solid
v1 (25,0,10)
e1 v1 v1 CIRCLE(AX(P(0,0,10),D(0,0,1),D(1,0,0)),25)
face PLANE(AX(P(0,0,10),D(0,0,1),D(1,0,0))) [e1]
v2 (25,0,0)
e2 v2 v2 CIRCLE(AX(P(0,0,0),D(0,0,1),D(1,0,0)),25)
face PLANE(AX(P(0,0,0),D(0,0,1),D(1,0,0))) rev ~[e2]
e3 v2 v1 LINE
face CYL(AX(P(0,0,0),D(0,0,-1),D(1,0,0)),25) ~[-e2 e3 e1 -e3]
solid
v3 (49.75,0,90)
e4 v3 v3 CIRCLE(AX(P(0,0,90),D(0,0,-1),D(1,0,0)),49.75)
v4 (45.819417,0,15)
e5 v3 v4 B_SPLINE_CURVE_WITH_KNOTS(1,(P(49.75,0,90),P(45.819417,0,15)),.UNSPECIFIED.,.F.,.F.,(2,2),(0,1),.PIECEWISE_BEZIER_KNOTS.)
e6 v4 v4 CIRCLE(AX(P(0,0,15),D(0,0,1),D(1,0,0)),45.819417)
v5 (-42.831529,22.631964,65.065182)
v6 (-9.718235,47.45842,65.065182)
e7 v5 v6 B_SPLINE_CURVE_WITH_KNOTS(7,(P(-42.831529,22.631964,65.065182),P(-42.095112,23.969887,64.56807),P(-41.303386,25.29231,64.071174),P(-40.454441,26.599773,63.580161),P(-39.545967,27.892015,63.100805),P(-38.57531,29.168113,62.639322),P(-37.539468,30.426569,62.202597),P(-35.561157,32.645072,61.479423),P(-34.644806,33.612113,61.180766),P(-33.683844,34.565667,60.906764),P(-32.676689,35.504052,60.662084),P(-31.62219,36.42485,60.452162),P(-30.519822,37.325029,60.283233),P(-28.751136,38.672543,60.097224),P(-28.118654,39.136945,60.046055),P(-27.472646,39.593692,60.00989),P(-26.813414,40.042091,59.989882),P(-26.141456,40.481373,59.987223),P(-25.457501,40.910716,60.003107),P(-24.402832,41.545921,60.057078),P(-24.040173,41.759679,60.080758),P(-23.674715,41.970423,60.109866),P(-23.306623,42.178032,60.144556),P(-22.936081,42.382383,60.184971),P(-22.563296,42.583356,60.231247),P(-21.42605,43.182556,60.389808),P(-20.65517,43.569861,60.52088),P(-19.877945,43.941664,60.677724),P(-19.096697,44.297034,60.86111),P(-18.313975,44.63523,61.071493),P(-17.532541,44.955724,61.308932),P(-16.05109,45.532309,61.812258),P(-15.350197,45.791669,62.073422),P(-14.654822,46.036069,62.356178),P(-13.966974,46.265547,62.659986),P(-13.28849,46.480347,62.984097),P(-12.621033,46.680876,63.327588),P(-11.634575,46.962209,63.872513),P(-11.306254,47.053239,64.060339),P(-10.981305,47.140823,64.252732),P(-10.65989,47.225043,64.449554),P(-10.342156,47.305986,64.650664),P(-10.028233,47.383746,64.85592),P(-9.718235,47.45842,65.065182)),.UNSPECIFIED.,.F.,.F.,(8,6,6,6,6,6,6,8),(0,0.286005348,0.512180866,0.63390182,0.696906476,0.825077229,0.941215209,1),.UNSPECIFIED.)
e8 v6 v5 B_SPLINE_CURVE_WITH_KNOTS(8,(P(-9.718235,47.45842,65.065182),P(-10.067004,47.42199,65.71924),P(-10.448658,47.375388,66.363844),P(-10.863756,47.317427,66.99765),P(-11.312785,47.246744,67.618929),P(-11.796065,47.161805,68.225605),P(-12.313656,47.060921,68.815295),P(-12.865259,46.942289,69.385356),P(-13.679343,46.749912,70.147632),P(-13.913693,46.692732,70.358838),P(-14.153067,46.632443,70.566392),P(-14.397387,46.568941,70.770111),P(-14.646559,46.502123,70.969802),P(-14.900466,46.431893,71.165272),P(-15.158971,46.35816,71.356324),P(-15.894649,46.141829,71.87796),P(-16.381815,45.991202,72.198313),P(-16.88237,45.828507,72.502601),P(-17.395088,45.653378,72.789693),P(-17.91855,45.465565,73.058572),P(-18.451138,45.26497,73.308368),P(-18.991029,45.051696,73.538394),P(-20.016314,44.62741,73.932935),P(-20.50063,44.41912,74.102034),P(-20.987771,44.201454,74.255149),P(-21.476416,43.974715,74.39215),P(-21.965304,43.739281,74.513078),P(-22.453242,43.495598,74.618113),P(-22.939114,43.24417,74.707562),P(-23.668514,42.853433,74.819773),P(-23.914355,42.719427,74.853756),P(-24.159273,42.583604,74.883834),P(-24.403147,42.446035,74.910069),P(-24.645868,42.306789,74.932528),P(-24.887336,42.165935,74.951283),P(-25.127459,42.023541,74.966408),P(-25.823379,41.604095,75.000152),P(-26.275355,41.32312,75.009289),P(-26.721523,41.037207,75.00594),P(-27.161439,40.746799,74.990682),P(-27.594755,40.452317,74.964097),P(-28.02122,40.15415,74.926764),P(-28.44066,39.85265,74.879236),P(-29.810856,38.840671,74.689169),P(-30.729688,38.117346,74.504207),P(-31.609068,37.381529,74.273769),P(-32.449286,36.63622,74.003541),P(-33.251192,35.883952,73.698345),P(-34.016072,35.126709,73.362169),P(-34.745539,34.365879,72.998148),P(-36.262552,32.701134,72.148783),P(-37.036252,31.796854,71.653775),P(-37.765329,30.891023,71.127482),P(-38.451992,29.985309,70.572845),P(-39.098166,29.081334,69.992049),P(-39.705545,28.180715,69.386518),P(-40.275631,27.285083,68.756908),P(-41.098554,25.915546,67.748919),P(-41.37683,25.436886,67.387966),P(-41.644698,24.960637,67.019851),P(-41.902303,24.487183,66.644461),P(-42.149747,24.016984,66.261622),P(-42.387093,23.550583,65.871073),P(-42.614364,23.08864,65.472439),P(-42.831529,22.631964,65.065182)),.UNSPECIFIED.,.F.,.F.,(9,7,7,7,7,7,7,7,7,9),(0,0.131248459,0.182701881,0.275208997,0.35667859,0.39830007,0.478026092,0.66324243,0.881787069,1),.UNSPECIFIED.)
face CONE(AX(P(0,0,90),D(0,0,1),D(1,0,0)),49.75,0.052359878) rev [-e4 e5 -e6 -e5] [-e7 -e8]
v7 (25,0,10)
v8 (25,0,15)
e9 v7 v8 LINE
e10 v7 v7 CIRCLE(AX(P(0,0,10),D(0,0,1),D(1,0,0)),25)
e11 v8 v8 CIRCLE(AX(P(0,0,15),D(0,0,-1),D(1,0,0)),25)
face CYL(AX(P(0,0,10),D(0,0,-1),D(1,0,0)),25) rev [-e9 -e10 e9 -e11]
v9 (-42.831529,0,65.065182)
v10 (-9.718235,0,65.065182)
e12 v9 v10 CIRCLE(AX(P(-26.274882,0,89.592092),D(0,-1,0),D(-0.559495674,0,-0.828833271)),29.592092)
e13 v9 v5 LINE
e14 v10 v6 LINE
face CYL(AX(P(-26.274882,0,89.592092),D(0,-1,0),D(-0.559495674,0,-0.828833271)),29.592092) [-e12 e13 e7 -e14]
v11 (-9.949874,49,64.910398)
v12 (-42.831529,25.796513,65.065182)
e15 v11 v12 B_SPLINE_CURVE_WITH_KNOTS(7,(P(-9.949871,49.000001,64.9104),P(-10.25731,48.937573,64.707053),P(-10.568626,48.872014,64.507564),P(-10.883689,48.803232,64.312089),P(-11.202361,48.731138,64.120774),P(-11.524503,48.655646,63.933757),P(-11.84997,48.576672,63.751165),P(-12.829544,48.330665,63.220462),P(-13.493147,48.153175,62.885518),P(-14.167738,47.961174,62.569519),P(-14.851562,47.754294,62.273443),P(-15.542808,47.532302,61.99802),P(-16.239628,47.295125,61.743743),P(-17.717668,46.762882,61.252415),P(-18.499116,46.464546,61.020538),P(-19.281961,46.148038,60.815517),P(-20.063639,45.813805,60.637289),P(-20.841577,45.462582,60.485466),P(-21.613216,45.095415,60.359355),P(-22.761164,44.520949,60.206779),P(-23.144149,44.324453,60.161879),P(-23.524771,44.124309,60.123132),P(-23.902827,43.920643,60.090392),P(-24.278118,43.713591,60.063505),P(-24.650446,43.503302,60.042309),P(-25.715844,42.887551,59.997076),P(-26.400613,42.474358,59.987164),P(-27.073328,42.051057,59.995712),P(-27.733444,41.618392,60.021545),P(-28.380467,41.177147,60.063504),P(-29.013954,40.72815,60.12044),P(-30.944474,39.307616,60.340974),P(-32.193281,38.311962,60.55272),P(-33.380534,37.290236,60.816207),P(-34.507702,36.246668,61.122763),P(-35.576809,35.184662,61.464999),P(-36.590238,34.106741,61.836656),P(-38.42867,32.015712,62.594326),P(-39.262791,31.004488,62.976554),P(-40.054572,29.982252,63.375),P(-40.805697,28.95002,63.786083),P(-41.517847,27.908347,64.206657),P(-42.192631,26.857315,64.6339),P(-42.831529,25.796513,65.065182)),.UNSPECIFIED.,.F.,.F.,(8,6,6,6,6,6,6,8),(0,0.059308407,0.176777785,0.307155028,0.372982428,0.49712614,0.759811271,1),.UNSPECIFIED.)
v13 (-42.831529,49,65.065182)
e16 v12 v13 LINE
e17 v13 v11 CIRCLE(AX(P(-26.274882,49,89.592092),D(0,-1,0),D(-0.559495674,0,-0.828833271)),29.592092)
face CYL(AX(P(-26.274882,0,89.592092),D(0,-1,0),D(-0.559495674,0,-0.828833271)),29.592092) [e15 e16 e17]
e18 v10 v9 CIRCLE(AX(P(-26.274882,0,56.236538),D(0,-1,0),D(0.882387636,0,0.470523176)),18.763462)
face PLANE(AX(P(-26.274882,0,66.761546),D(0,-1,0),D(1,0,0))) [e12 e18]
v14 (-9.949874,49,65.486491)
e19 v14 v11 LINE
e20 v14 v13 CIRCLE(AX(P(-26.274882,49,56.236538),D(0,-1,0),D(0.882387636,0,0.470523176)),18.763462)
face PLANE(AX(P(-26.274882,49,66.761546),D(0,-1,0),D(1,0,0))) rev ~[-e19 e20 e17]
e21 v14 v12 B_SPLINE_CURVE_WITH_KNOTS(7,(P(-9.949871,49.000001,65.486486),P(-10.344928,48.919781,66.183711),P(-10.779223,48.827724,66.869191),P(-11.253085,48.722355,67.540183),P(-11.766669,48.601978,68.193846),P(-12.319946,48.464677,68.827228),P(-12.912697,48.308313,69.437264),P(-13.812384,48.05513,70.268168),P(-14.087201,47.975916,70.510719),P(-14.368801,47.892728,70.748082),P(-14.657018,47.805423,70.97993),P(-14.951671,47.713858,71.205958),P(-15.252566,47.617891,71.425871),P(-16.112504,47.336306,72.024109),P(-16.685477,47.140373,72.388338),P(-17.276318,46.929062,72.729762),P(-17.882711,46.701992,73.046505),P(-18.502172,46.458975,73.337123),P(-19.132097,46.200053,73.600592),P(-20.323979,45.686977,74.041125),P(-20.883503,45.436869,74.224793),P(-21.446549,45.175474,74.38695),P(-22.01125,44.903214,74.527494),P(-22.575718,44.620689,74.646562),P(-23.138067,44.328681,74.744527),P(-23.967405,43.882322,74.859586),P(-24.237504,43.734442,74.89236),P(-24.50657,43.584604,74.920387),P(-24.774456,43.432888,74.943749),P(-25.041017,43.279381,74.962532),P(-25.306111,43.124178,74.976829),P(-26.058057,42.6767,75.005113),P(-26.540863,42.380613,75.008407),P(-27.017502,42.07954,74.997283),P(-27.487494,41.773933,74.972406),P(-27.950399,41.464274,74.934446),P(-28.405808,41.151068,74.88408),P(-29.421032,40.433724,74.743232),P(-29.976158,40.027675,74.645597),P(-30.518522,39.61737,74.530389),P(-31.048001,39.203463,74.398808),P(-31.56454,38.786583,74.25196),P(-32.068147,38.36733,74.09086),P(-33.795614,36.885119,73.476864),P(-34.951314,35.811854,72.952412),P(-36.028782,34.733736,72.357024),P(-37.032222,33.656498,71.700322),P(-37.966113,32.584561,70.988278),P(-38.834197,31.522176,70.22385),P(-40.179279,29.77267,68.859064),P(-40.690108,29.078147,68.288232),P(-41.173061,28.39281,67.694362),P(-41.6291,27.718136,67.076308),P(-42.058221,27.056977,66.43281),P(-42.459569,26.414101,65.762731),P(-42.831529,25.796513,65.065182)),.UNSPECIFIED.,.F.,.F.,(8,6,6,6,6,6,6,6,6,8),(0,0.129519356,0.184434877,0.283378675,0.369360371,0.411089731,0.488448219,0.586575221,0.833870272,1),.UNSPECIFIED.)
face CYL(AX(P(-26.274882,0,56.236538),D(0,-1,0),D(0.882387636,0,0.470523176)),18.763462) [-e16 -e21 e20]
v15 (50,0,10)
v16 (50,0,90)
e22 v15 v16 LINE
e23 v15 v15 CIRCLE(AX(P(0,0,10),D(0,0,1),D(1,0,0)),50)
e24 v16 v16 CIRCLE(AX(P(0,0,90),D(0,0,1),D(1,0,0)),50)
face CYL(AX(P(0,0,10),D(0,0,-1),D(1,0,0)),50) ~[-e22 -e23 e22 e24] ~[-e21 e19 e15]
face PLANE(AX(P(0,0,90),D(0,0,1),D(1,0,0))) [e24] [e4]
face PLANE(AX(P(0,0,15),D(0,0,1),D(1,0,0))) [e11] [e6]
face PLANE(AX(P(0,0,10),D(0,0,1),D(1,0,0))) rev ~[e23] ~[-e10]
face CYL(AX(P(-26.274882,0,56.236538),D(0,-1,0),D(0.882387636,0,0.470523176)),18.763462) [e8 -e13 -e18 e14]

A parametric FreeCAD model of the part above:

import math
import FreeCAD as App
import Part
import Sketcher
from FreeCAD import Vector

doc = App.newDocument("Part")
params = doc.addObject("Spreadsheet::Sheet", "Params")
for row, (alias, value) in enumerate([
    ("sketch1_diameter", "50 mm"),
    ("pad1_length", "10 mm"),
    ("sketch2_diameter", "100 mm"),
    ("sketch2_diameter2", "50 mm"),
    ("pad2_length", "80 mm"),
    ("sketch3_diameter", "99.5 mm"),
    ("pocket1_length", "75 mm"),
    ("pocket1_taper", "-3 deg"),
    ("pad3_length", "49 mm"),
], start=1):
    params.set(f"A{row}", alias)
    params.set(f"B{row}", "=" + value)
    params.setAlias(f"B{row}", alias)

body = doc.addObject("PartDesign::Body", "Body")

sketch1 = body.newObject("Sketcher::SketchObject", "Sketch")
sketch1.AttachmentSupport = (doc.getObject("XY_Plane"), [""])
sketch1.MapMode = "FlatFace"
sketch1.addGeometry(Part.Circle(Vector(0, 0, 0), Vector(0, 0, 1), 25), False)
sketch1.addConstraint([
    Sketcher.Constraint("Coincident", 0, 3, -1, 1),
    Sketcher.Constraint("Diameter", 0, 50.0),
])
sketch1.setExpression("Constraints[1]", "Params.sketch1_diameter")
pad1 = body.newObject("PartDesign::Pad", "Pad")
pad1.Profile = sketch1
pad1.setExpression("Length", "Params.pad1_length")
body2 = doc.addObject("PartDesign::Body", "Body001")

sketch2 = body2.newObject("Sketcher::SketchObject", "Sketch001")
sketch2.AttachmentSupport = (doc.getObject("XY_Plane001"), [""])
sketch2.MapMode = "FlatFace"
sketch2.AttachmentOffset = App.Placement(Vector(0, 0, 10), App.Rotation())
sketch2.addGeometry([
    Part.Circle(Vector(0, 0, 0), Vector(0, 0, 1), 50),
    Part.Circle(Vector(0, 0, 0), Vector(0, 0, 1), 25),
], False)
sketch2.addConstraint([
    Sketcher.Constraint("Coincident", 0, 3, -1, 1),
    Sketcher.Constraint("Coincident", 1, 3, -1, 1),
    Sketcher.Constraint("Diameter", 0, 100.0),
    Sketcher.Constraint("Diameter", 1, 50.0),
])
sketch2.setExpression("Constraints[2]", "Params.sketch2_diameter")
sketch2.setExpression("Constraints[3]", "Params.sketch2_diameter2")
pad2 = body2.newObject("PartDesign::Pad", "Pad001")
pad2.Profile = sketch2
pad2.setExpression("Length", "Params.pad2_length")

sketch3 = body2.newObject("Sketcher::SketchObject", "Sketch002")
sketch3.AttachmentSupport = (doc.getObject("XY_Plane001"), [""])
sketch3.MapMode = "FlatFace"
sketch3.AttachmentOffset = App.Placement(Vector(0, 0, 90), App.Rotation())
sketch3.addGeometry(Part.Circle(Vector(0, 0, 0), Vector(0, 0, 1), 50), False)
sketch3.addConstraint([
    Sketcher.Constraint("Coincident", 0, 3, -1, 1),
    Sketcher.Constraint("Diameter", 0, 99.5),
])
sketch3.setExpression("Constraints[1]", "Params.sketch3_diameter")
pocket1 = body2.newObject("PartDesign::Pocket", "Pocket")
pocket1.Profile = sketch3
pocket1.setExpression("Length", "Params.pocket1_length")
pocket1.setExpression("TaperAngle", "Params.pocket1_taper")

sketch4 = body2.newObject("Sketcher::SketchObject", "Sketch003")
sketch4.AttachmentSupport = (doc.getObject("XZ_Plane001"), [""])
sketch4.MapMode = "FlatFace"
sketch4.addGeometry([
    Part.ArcOfCircle(Part.Circle(Vector(-26, 56, 0), Vector(0, 0, 1), 19), math.radians(28), math.radians(152)),
    Part.ArcOfCircle(Part.Circle(Vector(-26, 90, 0), Vector(0, 0, 1), 30), math.radians(-124), math.radians(-56)),
], False)
sketch4.addConstraint([
    Sketcher.Constraint("Coincident", 0, 1, 1, 2),
    Sketcher.Constraint("Coincident", 1, 1, 0, 2),
    Sketcher.Constraint("Horizontal", 0, 1, 1, 1),
    Sketcher.Constraint("Radius", 1, 29.592092),
    Sketcher.Constraint("Radius", 0, 18.763462),
    Sketcher.Constraint("DistanceY", -1, 1, 1, 3, 89.592092),
    Sketcher.Constraint("DistanceY", -1, 1, 0, 1, 65.065182),
    Sketcher.Constraint("DistanceX", 1, 1, -1, 1, 42.831529),
])
pad3 = body2.newObject("PartDesign::Pad", "Pad002")
pad3.Profile = sketch4
pad3.setExpression("Length", "Params.pad3_length")
pad3.Reversed = True

doc.recompute()
